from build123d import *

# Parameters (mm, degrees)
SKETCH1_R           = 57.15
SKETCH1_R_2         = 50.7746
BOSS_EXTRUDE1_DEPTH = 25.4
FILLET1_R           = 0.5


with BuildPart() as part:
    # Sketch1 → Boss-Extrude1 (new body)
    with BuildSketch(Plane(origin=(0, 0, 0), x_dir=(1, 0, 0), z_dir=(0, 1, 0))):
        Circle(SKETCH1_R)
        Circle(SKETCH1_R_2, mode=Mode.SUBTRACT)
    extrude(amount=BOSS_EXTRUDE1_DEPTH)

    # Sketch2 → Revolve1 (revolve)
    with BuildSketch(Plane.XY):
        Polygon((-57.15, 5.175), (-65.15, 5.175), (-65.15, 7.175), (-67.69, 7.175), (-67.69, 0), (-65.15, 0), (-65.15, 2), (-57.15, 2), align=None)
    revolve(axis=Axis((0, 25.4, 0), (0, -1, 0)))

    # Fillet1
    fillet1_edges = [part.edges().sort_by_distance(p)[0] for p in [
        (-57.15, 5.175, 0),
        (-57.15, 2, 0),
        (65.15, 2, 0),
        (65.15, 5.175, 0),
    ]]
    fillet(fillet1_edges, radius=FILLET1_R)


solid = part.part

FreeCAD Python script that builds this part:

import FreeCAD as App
import Part
import Sketcher

V = App.Vector
Q = App.Units.Quantity


def edges_at(feature, points):
    """Names of the edges that pass closest to the given points."""
    edges = feature.Shape.Edges
    near = lambda p: min(range(len(edges)), key=lambda i: edges[i].distToShape(Part.Vertex(*p))[0])
    return sorted({f"Edge{near(p) + 1}" for p in points})

doc = App.newDocument("Part")
params = doc.addObject("Spreadsheet::Sheet", "Params")
for row, (alias, value) in enumerate([
    ("sketch1_diameter", "4.5 in"),
    ("sketch1_diameter2", "3.998 in"),
    ("pad1_length", "1 in"),
    ("sketch2_width", "0.1 in"),
    ("sketch2_height", "0.125 in"),
    ("revolution_angle", "360 deg"),
    ("fillet_radius", "0.5 mm"),
], start=1):
    params.set(f"A{row}", alias)
    params.set(f"B{row}", "=" + value)
    params.setAlias(f"B{row}", alias)

body = doc.addObject("PartDesign::Body", "Body")

# Sketch on XZ plane
sketch1 = doc.addObject("Sketcher::SketchObject", "Sketch")
body.addObject(sketch1)
sketch1.AttachmentSupport = (doc.XZ_Plane, [""])
sketch1.MapMode = "FlatFace"
sketch1.addGeometry([
    Part.Circle(V(0, 0, 0), V(0, 0, 1), 57.15),
    Part.Circle(V(0, 0, 0), V(0, 0, 1), 50.7746),
], False)
sketch1.addConstraint([
    Sketcher.Constraint("Coincident", 0, 3, -1, 1),
    Sketcher.Constraint("Coincident", 1, 3, -1, 1),
    Sketcher.Constraint("Diameter", 0, Q("4.5 in")),
    Sketcher.Constraint("Diameter", 1, Q("3.998 in")),
])
sketch1.setExpression("Constraints[2]", "Params.sketch1_diameter")
sketch1.setExpression("Constraints[3]", "Params.sketch1_diameter2")
pad1 = doc.addObject("PartDesign::Pad", "Pad")
body.addObject(pad1)
pad1.Profile = sketch1
pad1.setExpression("Length", "Params.pad1_length")
pad1.Reversed = True

# Sketch on XY plane
sketch2 = doc.addObject("Sketcher::SketchObject", "Sketch001")
body.addObject(sketch2)
sketch2.AttachmentSupport = (doc.XY_Plane, [""])
sketch2.MapMode = "FlatFace"
sketch2.addGeometry([
    Part.LineSegment(V(-57.15, 5.175, 0), V(-65.15, 5.175, 0)),  # 0
    Part.LineSegment(V(-65.15, 5.175, 0), V(-65.15, 7.175, 0)),  # 1
    Part.LineSegment(V(-65.15, 7.175, 0), V(-67.69, 7.175, 0)),  # 2
    Part.LineSegment(V(-67.69, 7.175, 0), V(-67.69, 0, 0)),  # 3
    Part.LineSegment(V(-67.69, 0, 0), V(-65.15, 0, 0)),  # 4
    Part.LineSegment(V(-65.15, 0, 0), V(-65.15, 2, 0)),  # 5
    Part.LineSegment(V(-65.15, 2, 0), V(-57.15, 2, 0)),  # 6
    Part.LineSegment(V(-57.15, 2, 0), V(-57.15, 5.175, 0)),  # 7
], False)
sketch2.addConstraint([
    Sketcher.Constraint("Coincident", 0, 2, 1, 1),
    Sketcher.Constraint("Coincident", 1, 2, 2, 1),
    Sketcher.Constraint("Coincident", 2, 2, 3, 1),
    Sketcher.Constraint("Coincident", 3, 2, 4, 1),
    Sketcher.Constraint("Coincident", 4, 2, 5, 1),
    Sketcher.Constraint("Coincident", 5, 2, 6, 1),
    Sketcher.Constraint("Coincident", 6, 2, 7, 1),
    Sketcher.Constraint("Coincident", 7, 2, 0, 1),
    Sketcher.Constraint("Horizontal", 0),
    Sketcher.Constraint("Vertical", 1),
    Sketcher.Constraint("Horizontal", 2),
    Sketcher.Constraint("Vertical", 3),
    Sketcher.Constraint("Horizontal", 4),
    Sketcher.Constraint("Vertical", 5),
    Sketcher.Constraint("Horizontal", 6),
    Sketcher.Constraint("Vertical", 7),
    Sketcher.Constraint("PointOnObject", 3, 2, -1),
    Sketcher.Constraint("Vertical", 1, 2, 4, 2),
    Sketcher.Constraint("Equal", 1, 5),
    Sketcher.Constraint("DistanceX", 2, 2, 2, 1, Q("0.1 in")),
    Sketcher.Constraint("DistanceY", 7, 1, 7, 2, Q("0.125 in")),
    Sketcher.Constraint("DistanceX", 6, 2, -1, 1, Q("2.25 in")),
    Sketcher.Constraint("DistanceX", 0, 2, 0, 1, 8.0),
    Sketcher.Constraint("DistanceY", 1, 1, 1, 2, 2.0),
])
sketch2.setExpression("Constraints[19]", "Params.sketch2_width")
sketch2.setExpression("Constraints[20]", "Params.sketch2_height")
revolution = doc.addObject("PartDesign::Revolution", "Revolution")
body.addObject(revolution)
revolution.Profile = sketch2
revolution.ReferenceAxis = (sketch2, ["V_Axis"])
revolution.setExpression("Angle", "Params.revolution_angle")
doc.recompute()

fillet = doc.addObject("PartDesign::Fillet", "Fillet")
body.addObject(fillet)
fillet.Base = (revolution, edges_at(revolution, [
    (-57.15, 5.175, 0),
    (-57.15, 2, 0),
    (65.15, 2, 0),
    (65.15, 5.175, 0),
]))
fillet.setExpression("Radius", "Params.fillet_radius")

doc.recompute()
